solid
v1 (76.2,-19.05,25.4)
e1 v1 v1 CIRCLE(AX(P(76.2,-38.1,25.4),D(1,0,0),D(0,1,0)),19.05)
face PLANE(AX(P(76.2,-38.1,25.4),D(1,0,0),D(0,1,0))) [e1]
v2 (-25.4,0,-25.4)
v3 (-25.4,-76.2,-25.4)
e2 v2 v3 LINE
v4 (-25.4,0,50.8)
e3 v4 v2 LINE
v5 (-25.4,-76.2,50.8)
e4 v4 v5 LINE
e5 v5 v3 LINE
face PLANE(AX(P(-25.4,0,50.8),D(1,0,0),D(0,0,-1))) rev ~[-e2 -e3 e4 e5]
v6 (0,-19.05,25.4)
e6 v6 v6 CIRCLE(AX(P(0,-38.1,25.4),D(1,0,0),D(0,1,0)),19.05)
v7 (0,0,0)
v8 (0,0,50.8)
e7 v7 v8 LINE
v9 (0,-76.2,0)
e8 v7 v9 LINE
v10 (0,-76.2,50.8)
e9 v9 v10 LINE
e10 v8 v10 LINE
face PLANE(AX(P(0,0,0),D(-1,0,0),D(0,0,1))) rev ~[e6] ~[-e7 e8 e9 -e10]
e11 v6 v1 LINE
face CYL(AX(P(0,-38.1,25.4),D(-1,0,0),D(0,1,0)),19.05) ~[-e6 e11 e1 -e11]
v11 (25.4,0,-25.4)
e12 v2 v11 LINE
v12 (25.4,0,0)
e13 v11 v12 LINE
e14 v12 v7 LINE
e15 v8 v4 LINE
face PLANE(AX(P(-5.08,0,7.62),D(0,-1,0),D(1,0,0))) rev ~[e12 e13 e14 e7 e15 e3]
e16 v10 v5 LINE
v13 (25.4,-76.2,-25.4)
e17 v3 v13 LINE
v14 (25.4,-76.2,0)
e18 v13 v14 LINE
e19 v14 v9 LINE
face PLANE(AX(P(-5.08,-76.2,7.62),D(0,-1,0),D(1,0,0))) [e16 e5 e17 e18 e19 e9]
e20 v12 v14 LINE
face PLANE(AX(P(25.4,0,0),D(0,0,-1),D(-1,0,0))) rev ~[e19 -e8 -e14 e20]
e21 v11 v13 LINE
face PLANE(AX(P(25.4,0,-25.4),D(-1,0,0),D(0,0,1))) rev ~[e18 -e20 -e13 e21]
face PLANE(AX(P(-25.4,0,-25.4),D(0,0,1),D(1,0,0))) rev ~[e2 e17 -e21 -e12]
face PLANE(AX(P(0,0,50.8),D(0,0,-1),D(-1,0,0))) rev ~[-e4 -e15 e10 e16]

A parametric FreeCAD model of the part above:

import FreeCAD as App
import Part
import Sketcher

V = App.Vector
Q = App.Units.Quantity

doc = App.newDocument("Part")
body = doc.addObject("PartDesign::Body", "Body")

# Sketch on XZ plane
sketch1 = body.newObject("Sketcher::SketchObject", "Sketch")
sketch1.AttachmentSupport = (doc.getObject("XZ_Plane"), [""])
sketch1.MapMode = "FlatFace"
sketch1.addGeometry(Part.LineSegment(V(25, 0, 0), V(0, 0, 0)), False)
sketch1.addGeometry(Part.LineSegment(V(0, 0, 0), V(0, 51, 0)), False)
sketch1.addGeometry(Part.LineSegment(V(0, 51, 0), V(-25, 51, 0)), False)
sketch1.addGeometry(Part.LineSegment(V(-25, 51, 0), V(-25, -25, 0)), False)
sketch1.addGeometry(Part.LineSegment(V(-25, -25, 0), V(25, -25, 0)), False)
sketch1.addGeometry(Part.LineSegment(V(25, -25, 0), V(25, 0, 0)), False)
sketch1.addConstraint(Sketcher.Constraint("Coincident", 0, 2, 1, 1))
sketch1.addConstraint(Sketcher.Constraint("Coincident", 1, 2, 2, 1))
sketch1.addConstraint(Sketcher.Constraint("Coincident", 2, 2, 3, 1))
sketch1.addConstraint(Sketcher.Constraint("Coincident", 3, 2, 4, 1))
sketch1.addConstraint(Sketcher.Constraint("Coincident", 4, 2, 5, 1))
sketch1.addConstraint(Sketcher.Constraint("Coincident", 5, 2, 0, 1))
sketch1.addConstraint(Sketcher.Constraint("Horizontal", 0))
sketch1.addConstraint(Sketcher.Constraint("Vertical", 1))
sketch1.addConstraint(Sketcher.Constraint("Horizontal", 2))
sketch1.addConstraint(Sketcher.Constraint("Vertical", 3))
sketch1.addConstraint(Sketcher.Constraint("Horizontal", 4))
sketch1.addConstraint(Sketcher.Constraint("Vertical", 5))
sketch1.addConstraint(Sketcher.Constraint("Coincident", 0, 2, -1, 1))
sketch1.addConstraint(Sketcher.Constraint("Equal", 0, 2))
sketch1.addConstraint(Sketcher.Constraint("Equal", 4, 1))
sketch1.addConstraint(Sketcher.Constraint("Equal", 2, 5))
sketch1.addConstraint(Sketcher.Constraint("DistanceX", 0, 2, 0, 1, Q("1 in")))
pad1 = body.newObject("PartDesign::Pad", "Pad")
pad1.Profile = sketch1
pad1.Length = Q("3 in")

# Sketch on YZ plane
sketch2 = body.newObject("Sketcher::SketchObject", "Sketch001")
sketch2.AttachmentSupport = (doc.getObject("YZ_Plane"), [""])
sketch2.MapMode = "FlatFace"
sketch2.addGeometry(Part.Circle(V(-38, 25, 0), V(0, 0, 1), 19), False)
sketch2.addConstraint(Sketcher.Constraint("Diameter", 0, Q("1.5 in")))
sketch2.addConstraint(Sketcher.Constraint("DistanceY", -1, 1, 0, 3, Q("1 in")))
sketch2.addConstraint(Sketcher.Constraint("DistanceX", 0, 3, -1, 1, Q("1.5 in")))
pad2 = body.newObject("PartDesign::Pad", "Pad001")
pad2.Profile = sketch2
pad2.Length = Q("3 in")

doc.recompute()
